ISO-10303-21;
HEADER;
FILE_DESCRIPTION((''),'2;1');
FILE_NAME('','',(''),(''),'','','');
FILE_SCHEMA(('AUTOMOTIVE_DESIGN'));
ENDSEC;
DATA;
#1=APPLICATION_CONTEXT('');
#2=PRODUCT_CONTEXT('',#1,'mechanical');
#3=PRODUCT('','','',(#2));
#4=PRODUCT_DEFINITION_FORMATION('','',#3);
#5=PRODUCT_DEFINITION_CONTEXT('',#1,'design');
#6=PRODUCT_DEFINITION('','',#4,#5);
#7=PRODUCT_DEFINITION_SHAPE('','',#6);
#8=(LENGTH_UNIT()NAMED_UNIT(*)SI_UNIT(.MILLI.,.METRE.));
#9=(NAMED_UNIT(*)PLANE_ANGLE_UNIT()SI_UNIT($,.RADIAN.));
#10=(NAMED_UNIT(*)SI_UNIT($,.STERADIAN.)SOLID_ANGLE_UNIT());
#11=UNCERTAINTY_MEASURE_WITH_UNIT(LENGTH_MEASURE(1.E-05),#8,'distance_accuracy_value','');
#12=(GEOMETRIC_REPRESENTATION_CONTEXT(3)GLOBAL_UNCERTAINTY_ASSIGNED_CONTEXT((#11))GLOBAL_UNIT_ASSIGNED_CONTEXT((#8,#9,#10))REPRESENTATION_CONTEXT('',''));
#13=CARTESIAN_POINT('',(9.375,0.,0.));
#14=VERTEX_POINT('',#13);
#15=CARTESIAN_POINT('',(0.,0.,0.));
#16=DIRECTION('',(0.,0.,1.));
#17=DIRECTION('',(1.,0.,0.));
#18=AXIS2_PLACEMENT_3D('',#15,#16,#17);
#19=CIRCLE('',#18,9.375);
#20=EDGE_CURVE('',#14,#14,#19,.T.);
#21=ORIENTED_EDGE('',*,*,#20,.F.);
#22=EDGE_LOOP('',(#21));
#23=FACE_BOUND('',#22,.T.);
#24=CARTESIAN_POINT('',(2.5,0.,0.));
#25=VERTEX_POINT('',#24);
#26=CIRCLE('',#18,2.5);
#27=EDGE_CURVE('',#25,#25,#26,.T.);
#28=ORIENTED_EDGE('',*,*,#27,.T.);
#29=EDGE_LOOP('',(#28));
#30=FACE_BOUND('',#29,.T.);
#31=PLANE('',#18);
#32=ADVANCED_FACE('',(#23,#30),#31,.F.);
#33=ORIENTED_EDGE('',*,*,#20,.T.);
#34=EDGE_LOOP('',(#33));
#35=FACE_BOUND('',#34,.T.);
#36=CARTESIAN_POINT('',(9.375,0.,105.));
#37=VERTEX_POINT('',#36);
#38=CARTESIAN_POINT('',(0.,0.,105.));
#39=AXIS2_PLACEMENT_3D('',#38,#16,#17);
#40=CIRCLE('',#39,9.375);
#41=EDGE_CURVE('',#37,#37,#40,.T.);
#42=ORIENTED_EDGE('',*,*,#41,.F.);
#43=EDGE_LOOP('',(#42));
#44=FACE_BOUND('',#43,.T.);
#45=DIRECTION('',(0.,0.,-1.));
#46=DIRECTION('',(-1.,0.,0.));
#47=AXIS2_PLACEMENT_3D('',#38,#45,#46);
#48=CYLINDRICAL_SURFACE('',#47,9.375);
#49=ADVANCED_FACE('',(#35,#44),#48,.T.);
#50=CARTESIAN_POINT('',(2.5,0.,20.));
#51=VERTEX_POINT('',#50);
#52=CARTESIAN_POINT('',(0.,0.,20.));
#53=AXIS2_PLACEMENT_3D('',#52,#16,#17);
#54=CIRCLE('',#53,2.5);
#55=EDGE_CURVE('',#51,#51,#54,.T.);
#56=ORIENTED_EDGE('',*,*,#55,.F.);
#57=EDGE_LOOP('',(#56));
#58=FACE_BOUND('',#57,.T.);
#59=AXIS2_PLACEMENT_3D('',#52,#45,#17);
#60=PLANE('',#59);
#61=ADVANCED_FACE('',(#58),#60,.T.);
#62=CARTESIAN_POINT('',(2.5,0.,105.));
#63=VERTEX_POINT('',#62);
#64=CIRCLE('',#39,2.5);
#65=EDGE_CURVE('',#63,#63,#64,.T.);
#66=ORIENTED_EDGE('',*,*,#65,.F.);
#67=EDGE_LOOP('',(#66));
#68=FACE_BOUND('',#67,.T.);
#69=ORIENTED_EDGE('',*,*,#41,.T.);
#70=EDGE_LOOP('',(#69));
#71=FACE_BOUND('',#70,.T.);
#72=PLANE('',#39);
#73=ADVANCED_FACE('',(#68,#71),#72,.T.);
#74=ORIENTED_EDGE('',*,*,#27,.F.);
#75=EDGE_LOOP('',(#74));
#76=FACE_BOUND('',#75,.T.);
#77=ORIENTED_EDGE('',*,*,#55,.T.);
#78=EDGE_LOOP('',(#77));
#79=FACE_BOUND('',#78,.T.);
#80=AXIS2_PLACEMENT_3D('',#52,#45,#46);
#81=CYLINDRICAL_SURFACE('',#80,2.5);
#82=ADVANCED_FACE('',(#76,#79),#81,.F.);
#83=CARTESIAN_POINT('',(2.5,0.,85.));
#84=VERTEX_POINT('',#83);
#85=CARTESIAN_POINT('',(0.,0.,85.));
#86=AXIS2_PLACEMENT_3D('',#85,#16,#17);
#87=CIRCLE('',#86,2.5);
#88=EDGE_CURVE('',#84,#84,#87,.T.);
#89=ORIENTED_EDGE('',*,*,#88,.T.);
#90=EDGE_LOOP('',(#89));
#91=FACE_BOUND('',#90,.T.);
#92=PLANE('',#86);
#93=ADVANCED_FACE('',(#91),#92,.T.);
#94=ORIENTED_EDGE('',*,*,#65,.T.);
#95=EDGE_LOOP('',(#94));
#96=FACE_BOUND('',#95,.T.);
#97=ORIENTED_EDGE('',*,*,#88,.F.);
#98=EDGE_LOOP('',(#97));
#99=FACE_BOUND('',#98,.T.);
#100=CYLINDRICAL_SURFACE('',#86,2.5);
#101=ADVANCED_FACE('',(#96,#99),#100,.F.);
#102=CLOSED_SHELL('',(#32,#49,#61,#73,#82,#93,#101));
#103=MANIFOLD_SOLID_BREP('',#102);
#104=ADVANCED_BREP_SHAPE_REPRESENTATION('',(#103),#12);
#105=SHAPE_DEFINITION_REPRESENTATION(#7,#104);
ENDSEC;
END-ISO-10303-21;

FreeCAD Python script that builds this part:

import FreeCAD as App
import Part
import Sketcher

doc = App.newDocument("Part")
params = doc.addObject("Spreadsheet::Sheet", "Params")
for row, (alias, value) in enumerate([
    ("sketch1_diameter", "18.75 mm"),
    ("pad1_length", "105 mm"),
    ("sketch2_diameter", "5 mm"),
    ("pocket1_length", "20 mm"),
], start=1):
    params.set(f"A{row}", alias)
    params.set(f"B{row}", "=" + value)
    params.setAlias(f"B{row}", alias)

body = doc.addObject("PartDesign::Body", "Body")

# Sketch on XY plane
sketch1 = body.newObject("Sketcher::SketchObject", "Sketch")
sketch1.AttachmentSupport = (doc.getObject("XY_Plane"), [""])
sketch1.MapMode = "FlatFace"
sketch1.addGeometry(Part.Circle(App.Vector(0, 0, 0), App.Vector(0, 0, 1), 9), False)
sketch1.addConstraint([
    Sketcher.Constraint("Coincident", 0, 3, -1, 1),
    Sketcher.Constraint("Diameter", 0, 18.75),
])
sketch1.setExpression("Constraints[1]", "Params.sketch1_diameter")
pad1 = body.newObject("PartDesign::Pad", "Pad")
pad1.Profile = sketch1
pad1.setExpression("Length", "Params.pad1_length")

# Sketch on XY plane
sketch2 = body.newObject("Sketcher::SketchObject", "Sketch001")
sketch2.AttachmentSupport = (doc.getObject("XY_Plane"), [""])
sketch2.MapMode = "FlatFace"
sketch2.AttachmentOffset = App.Placement(App.Vector(0, 0, 105), App.Rotation())
sketch2.addGeometry(Part.Circle(App.Vector(0, 0, 0), App.Vector(0, 0, 1), 2.5), False)
sketch2.addConstraint([
    Sketcher.Constraint("Coincident", 0, 3, -1, 1),
    Sketcher.Constraint("Diameter", 0, 5.0),
])
sketch2.setExpression("Constraints[1]", "Params.sketch2_diameter")
pocket1 = body.newObject("PartDesign::Pocket", "Pocket")
pocket1.Profile = sketch2
pocket1.setExpression("Length", "Params.pocket1_length")
doc.recompute()

datumplane = body.newObject("PartDesign::Plane", "DatumPlane")
datumplane.AttachmentSupport = (doc.getObject("XY_Plane"), [""])
datumplane.MapMode = "FlatFace"
datumplane.AttachmentOffset = App.Placement(App.Vector(0, 0, 52.5), App.Rotation())
mirrored = body.newObject("PartDesign::Mirrored", "Mirrored")
mirrored.Originals = [pocket1]
mirrored.MirrorPlane = (datumplane, [""])
body.Tip = mirrored

doc.recompute()
